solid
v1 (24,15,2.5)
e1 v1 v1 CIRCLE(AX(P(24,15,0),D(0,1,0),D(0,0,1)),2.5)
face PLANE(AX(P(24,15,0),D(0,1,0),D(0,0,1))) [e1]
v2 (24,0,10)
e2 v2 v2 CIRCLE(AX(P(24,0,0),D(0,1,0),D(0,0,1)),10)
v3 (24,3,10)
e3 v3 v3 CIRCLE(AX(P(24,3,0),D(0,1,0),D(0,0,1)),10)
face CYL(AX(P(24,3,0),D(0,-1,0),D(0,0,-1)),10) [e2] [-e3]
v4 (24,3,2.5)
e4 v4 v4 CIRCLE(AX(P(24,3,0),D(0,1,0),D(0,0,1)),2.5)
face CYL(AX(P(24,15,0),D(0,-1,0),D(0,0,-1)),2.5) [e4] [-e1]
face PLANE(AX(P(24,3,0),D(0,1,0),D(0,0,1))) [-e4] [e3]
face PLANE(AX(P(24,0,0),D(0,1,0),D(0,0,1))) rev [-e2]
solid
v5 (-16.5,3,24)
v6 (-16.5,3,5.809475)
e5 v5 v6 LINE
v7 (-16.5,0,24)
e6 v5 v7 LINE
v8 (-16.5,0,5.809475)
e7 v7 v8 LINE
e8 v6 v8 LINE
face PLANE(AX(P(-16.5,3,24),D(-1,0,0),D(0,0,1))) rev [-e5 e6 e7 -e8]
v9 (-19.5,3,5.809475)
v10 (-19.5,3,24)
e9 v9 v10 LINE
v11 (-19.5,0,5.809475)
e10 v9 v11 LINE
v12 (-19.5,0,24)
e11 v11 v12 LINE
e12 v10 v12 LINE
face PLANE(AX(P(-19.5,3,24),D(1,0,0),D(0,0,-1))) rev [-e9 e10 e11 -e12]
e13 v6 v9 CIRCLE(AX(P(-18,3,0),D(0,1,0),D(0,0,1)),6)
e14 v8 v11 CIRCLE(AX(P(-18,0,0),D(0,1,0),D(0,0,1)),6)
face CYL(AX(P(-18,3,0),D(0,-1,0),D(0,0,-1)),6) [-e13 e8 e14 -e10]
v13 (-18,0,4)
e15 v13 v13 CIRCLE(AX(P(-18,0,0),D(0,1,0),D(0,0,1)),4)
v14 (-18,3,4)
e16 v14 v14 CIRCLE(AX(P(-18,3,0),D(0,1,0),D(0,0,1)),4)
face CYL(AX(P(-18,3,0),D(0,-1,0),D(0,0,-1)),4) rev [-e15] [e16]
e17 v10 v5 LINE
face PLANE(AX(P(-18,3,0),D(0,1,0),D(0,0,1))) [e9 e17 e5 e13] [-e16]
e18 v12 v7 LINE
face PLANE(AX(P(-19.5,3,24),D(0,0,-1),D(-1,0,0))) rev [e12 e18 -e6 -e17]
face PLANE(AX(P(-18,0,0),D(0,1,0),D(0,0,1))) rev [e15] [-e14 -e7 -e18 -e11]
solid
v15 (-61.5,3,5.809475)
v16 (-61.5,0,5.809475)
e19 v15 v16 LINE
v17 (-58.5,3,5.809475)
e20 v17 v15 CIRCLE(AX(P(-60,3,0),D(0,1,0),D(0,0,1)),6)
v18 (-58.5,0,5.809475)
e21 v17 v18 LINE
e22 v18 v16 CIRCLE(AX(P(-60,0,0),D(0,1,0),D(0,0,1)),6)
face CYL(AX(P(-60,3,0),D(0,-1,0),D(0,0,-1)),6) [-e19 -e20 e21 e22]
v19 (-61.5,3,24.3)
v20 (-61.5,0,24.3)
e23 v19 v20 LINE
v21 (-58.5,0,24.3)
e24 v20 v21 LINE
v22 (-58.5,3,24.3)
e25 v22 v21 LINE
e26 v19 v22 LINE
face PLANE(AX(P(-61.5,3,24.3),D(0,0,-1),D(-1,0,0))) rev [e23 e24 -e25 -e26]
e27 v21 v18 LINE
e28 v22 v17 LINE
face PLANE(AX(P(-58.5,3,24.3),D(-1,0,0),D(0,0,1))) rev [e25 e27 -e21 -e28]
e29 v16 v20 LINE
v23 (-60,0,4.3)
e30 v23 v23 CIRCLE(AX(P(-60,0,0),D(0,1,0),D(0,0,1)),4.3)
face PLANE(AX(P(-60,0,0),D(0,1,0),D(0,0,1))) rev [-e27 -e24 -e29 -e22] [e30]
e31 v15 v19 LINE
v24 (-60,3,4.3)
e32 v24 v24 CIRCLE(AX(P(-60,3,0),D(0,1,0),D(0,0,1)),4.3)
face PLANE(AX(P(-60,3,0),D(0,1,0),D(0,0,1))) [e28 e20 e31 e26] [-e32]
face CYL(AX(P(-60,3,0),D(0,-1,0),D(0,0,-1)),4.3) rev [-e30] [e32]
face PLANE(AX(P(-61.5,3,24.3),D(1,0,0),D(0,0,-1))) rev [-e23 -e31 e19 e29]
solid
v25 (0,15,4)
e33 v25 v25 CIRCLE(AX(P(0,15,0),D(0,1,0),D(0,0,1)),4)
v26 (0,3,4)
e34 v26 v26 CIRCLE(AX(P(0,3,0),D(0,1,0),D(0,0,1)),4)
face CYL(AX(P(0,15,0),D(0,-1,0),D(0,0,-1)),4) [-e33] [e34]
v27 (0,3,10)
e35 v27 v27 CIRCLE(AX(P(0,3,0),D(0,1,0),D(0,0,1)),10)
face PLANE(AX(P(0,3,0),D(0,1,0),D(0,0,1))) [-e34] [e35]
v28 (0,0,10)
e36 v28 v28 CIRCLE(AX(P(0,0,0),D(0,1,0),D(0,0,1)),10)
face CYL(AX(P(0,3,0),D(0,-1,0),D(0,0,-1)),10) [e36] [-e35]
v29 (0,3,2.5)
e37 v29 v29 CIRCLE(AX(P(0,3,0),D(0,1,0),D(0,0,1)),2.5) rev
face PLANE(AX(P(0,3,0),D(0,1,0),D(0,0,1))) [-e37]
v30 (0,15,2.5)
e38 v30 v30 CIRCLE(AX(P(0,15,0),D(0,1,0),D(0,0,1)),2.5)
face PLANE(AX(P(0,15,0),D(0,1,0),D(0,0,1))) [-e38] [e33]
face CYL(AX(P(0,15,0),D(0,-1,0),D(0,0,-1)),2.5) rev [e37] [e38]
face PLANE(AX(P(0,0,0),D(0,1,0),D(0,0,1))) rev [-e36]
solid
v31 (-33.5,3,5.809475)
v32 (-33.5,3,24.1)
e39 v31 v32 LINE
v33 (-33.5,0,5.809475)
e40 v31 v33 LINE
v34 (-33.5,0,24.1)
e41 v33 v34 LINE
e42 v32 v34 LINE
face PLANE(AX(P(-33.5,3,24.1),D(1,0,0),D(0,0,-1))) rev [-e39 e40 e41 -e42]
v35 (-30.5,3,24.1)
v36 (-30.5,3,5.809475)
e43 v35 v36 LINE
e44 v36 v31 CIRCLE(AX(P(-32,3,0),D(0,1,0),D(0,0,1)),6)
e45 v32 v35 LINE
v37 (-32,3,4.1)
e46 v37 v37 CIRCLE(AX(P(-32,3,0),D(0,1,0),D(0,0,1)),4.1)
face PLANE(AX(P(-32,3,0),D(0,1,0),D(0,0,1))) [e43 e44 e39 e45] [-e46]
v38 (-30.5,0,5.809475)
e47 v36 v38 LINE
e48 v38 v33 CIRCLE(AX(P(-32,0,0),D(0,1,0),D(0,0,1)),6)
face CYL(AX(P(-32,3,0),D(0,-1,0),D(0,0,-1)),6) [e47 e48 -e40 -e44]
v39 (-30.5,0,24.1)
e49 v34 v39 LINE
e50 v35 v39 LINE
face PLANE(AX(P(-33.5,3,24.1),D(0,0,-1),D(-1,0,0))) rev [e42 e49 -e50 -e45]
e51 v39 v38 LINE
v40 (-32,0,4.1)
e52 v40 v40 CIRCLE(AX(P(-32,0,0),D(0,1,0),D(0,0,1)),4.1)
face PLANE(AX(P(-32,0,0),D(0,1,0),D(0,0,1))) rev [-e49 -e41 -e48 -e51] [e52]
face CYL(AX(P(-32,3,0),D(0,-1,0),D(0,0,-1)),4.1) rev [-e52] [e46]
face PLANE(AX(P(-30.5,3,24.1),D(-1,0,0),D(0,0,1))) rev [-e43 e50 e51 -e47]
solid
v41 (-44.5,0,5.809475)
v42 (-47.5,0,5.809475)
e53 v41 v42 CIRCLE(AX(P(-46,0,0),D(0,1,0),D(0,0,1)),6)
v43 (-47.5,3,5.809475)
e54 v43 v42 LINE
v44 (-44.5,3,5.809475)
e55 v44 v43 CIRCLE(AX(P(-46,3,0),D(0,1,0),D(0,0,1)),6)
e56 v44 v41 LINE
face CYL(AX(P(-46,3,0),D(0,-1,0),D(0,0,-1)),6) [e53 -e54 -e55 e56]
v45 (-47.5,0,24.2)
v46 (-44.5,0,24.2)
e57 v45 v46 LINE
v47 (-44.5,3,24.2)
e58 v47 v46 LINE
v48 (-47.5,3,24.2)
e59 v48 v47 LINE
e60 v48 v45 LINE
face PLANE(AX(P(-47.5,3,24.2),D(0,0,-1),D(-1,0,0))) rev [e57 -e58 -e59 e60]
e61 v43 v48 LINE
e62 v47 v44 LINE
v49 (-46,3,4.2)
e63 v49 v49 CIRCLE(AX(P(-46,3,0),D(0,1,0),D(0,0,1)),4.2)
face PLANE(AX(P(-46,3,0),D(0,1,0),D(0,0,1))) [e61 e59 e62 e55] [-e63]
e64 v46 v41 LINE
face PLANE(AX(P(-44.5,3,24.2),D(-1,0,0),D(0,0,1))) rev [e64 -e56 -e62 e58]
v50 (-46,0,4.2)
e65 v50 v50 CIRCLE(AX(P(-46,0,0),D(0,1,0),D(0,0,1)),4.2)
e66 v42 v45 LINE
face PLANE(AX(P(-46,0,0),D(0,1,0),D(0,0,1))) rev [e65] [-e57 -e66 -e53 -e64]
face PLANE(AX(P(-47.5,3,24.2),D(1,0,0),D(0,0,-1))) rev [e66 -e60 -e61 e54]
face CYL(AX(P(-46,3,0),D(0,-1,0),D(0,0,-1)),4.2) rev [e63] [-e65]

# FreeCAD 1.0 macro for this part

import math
import FreeCAD as App
import Part
import Sketcher

V = App.Vector

doc = App.newDocument("Part")
body = doc.addObject("PartDesign::Body", "Body")

sketch1 = doc.addObject("Sketcher::SketchObject", "Sketch")
body.addObject(sketch1)
sketch1.AttachmentSupport = (doc.XZ_Plane, [""])
sketch1.MapMode = "FlatFace"
sketch1.addGeometry(Part.Circle(V(0, 0, 0), V(0, 0, 1), 10), False)
sketch1.addConstraint(Sketcher.Constraint("Coincident", 0, 3, -1, 1))
sketch1.addConstraint(Sketcher.Constraint("Diameter", 0, 20.0))
pad1 = doc.addObject("PartDesign::Pad", "Pad")
body.addObject(pad1)
pad1.Profile = sketch1
pad1.Length = 3
pad1.Reversed = True

sketch2 = doc.addObject("Sketcher::SketchObject", "Sketch001")
body.addObject(sketch2)
sketch2.AttachmentSupport = (doc.XZ_Plane, [""])
sketch2.MapMode = "FlatFace"
sketch2.AttachmentOffset = App.Placement(V(0, 0, -3), App.Rotation())
sketch2.addGeometry(Part.Circle(V(0, 0, 0), V(0, 0, 1), 4), False)
sketch2.addGeometry(Part.Circle(V(0, 0, 0), V(0, 0, 1), 2.5), False)
sketch2.addConstraint(Sketcher.Constraint("Coincident", 0, 3, -1, 1))
sketch2.addConstraint(Sketcher.Constraint("Coincident", 1, 3, -1, 1))
sketch2.addConstraint(Sketcher.Constraint("Diameter", 0, 8.0))
sketch2.addConstraint(Sketcher.Constraint("Diameter", 1, 5.0))
pad2 = doc.addObject("PartDesign::Pad", "Pad001")
body.addObject(pad2)
pad2.Profile = sketch2
pad2.Length = 12
pad2.Reversed = True
body2 = doc.addObject("PartDesign::Body", "Body001")

sketch3 = doc.addObject("Sketcher::SketchObject", "Sketch002")
body2.addObject(sketch3)
sketch3.AttachmentSupport = (doc.getObject("XZ_Plane001"), [""])
sketch3.MapMode = "FlatFace"
sketch3.addGeometry(Part.Circle(V(24, 0, 0), V(0, 0, 1), 10), False)
sketch3.addConstraint(Sketcher.Constraint("PointOnObject", 0, 3, -1))
sketch3.addConstraint(Sketcher.Constraint("Diameter", 0, 20.0))
sketch3.addConstraint(Sketcher.Constraint("DistanceX", -1, 1, 0, 3, 24.0))
pad3 = doc.addObject("PartDesign::Pad", "Pad002")
body2.addObject(pad3)
pad3.Profile = sketch3
pad3.Length = 3
pad3.Reversed = True

sketch4 = doc.addObject("Sketcher::SketchObject", "Sketch003")
body2.addObject(sketch4)
sketch4.AttachmentSupport = (doc.getObject("XZ_Plane001"), [""])
sketch4.MapMode = "FlatFace"
sketch4.AttachmentOffset = App.Placement(V(0, 0, -3), App.Rotation())
sketch4.addGeometry(Part.Circle(V(24, 0, 0), V(0, 0, 1), 2.5), False)
sketch4.addConstraint(Sketcher.Constraint("PointOnObject", 0, 3, -1))
sketch4.addConstraint(Sketcher.Constraint("Diameter", 0, 5.0))
sketch4.addConstraint(Sketcher.Constraint("DistanceX", -1, 1, 0, 3, 24.0))
pad4 = doc.addObject("PartDesign::Pad", "Pad003")
body2.addObject(pad4)
pad4.Profile = sketch4
pad4.Length = 12
pad4.Reversed = True
body3 = doc.addObject("PartDesign::Body", "Body002")

sketch5 = doc.addObject("Sketcher::SketchObject", "Sketch004")
body3.addObject(sketch5)
sketch5.AttachmentSupport = (doc.getObject("XZ_Plane002"), [""])
sketch5.MapMode = "FlatFace"
sketch5.addGeometry(Part.LineSegment(V(-61.5, 24.3, 0), V(-58.5, 24.3, 0)), False)
sketch5.addGeometry(Part.LineSegment(V(-58.5, 24.3, 0), V(-58.5, 5.8, 0)), False)
sketch5.addGeometry(Part.ArcOfCircle(Part.Circle(V(-60, 0, 0), V(0, 0, 1), 6), math.radians(104), math.radians(436)), False)
sketch5.addGeometry(Part.LineSegment(V(-61.5, 5.8, 0), V(-61.5, 24.3, 0)), False)
sketch5.addGeometry(Part.Circle(V(-60, 0, 0), V(0, 0, 1), 4.3), False)
sketch5.addConstraint(Sketcher.Constraint("Coincident", 0, 2, 1, 1))
sketch5.addConstraint(Sketcher.Constraint("Coincident", 1, 2, 2, 2))
sketch5.addConstraint(Sketcher.Constraint("Coincident", 2, 1, 3, 1))
sketch5.addConstraint(Sketcher.Constraint("Coincident", 3, 2, 0, 1))
sketch5.addConstraint(Sketcher.Constraint("Horizontal", 0))
sketch5.addConstraint(Sketcher.Constraint("Vertical", 1))
sketch5.addConstraint(Sketcher.Constraint("Vertical", 3))
sketch5.addConstraint(Sketcher.Constraint("Coincident", 4, 3, 2, 3))
sketch5.addConstraint(Sketcher.Constraint("PointOnObject", 2, 3, -1))
sketch5.addConstraint(Sketcher.Constraint("Horizontal", 1, 2, 2, 1))
sketch5.addConstraint(Sketcher.Constraint("Radius", 2, 6.0))
sketch5.addConstraint(Sketcher.Constraint("Diameter", 4, 8.6))
sketch5.addConstraint(Sketcher.Constraint("DistanceX", 0, 1, 0, 2, 3.0))
sketch5.addConstraint(Sketcher.Constraint("DistanceX", 2, 3, -1, 1, 60.0))
sketch5.addConstraint(Sketcher.Constraint("DistanceY", -1, 1, 0, 2, 24.3))
pad5 = doc.addObject("PartDesign::Pad", "Pad004")
body3.addObject(pad5)
pad5.Profile = sketch5
pad5.Length = 3
pad5.Reversed = True
body4 = doc.addObject("PartDesign::Body", "Body003")

sketch6 = doc.addObject("Sketcher::SketchObject", "Sketch005")
body4.addObject(sketch6)
sketch6.AttachmentSupport = (doc.getObject("XZ_Plane003"), [""])
sketch6.MapMode = "FlatFace"
sketch6.addGeometry(Part.LineSegment(V(-47.5, 24.2, 0), V(-44.5, 24.2, 0)), False)
sketch6.addGeometry(Part.LineSegment(V(-44.5, 24.2, 0), V(-44.5, 5.8, 0)), False)
sketch6.addGeometry(Part.ArcOfCircle(Part.Circle(V(-46, 0, 0), V(0, 0, 1), 6), math.radians(104), math.radians(436)), False)
sketch6.addGeometry(Part.LineSegment(V(-47.5, 5.8, 0), V(-47.5, 24.2, 0)), False)
sketch6.addGeometry(Part.Circle(V(-46, 0, 0), V(0, 0, 1), 4.2), False)
sketch6.addConstraint(Sketcher.Constraint("Coincident", 0, 2, 1, 1))
sketch6.addConstraint(Sketcher.Constraint("Coincident", 1, 2, 2, 2))
sketch6.addConstraint(Sketcher.Constraint("Coincident", 2, 1, 3, 1))
sketch6.addConstraint(Sketcher.Constraint("Coincident", 3, 2, 0, 1))
sketch6.addConstraint(Sketcher.Constraint("Horizontal", 0))
sketch6.addConstraint(Sketcher.Constraint("Vertical", 1))
sketch6.addConstraint(Sketcher.Constraint("Vertical", 3))
sketch6.addConstraint(Sketcher.Constraint("Coincident", 4, 3, 2, 3))
sketch6.addConstraint(Sketcher.Constraint("PointOnObject", 2, 3, -1))
sketch6.addConstraint(Sketcher.Constraint("Horizontal", 1, 2, 2, 1))
sketch6.addConstraint(Sketcher.Constraint("Radius", 2, 6.0))
sketch6.addConstraint(Sketcher.Constraint("Diameter", 4, 8.4))
sketch6.addConstraint(Sketcher.Constraint("DistanceX", 0, 1, 0, 2, 3.0))
sketch6.addConstraint(Sketcher.Constraint("DistanceX", 2, 3, -1, 1, 46.0))
sketch6.addConstraint(Sketcher.Constraint("DistanceY", -1, 1, 0, 2, 24.2))
pad6 = doc.addObject("PartDesign::Pad", "Pad005")
body4.addObject(pad6)
pad6.Profile = sketch6
pad6.Length = 3
pad6.Reversed = True
body5 = doc.addObject("PartDesign::Body", "Body004")

sketch7 = doc.addObject("Sketcher::SketchObject", "Sketch006")
body5.addObject(sketch7)
sketch7.AttachmentSupport = (doc.getObject("XZ_Plane004"), [""])
sketch7.MapMode = "FlatFace"
sketch7.addGeometry(Part.LineSegment(V(-33.5, 24.1, 0), V(-30.5, 24.1, 0)), False)
sketch7.addGeometry(Part.LineSegment(V(-30.5, 24.1, 0), V(-30.5, 5.8, 0)), False)
sketch7.addGeometry(Part.ArcOfCircle(Part.Circle(V(-32, 0, 0), V(0, 0, 1), 6), math.radians(104), math.radians(436)), False)
sketch7.addGeometry(Part.LineSegment(V(-33.5, 5.8, 0), V(-33.5, 24.1, 0)), False)
sketch7.addGeometry(Part.Circle(V(-32, 0, 0), V(0, 0, 1), 4.1), False)
sketch7.addConstraint(Sketcher.Constraint("Coincident", 0, 2, 1, 1))
sketch7.addConstraint(Sketcher.Constraint("Coincident", 1, 2, 2, 2))
sketch7.addConstraint(Sketcher.Constraint("Coincident", 2, 1, 3, 1))
sketch7.addConstraint(Sketcher.Constraint("Coincident", 3, 2, 0, 1))
sketch7.addConstraint(Sketcher.Constraint("Horizontal", 0))
sketch7.addConstraint(Sketcher.Constraint("Vertical", 1))
sketch7.addConstraint(Sketcher.Constraint("Vertical", 3))
sketch7.addConstraint(Sketcher.Constraint("Coincident", 4, 3, 2, 3))
sketch7.addConstraint(Sketcher.Constraint("PointOnObject", 2, 3, -1))
sketch7.addConstraint(Sketcher.Constraint("Horizontal", 1, 2, 2, 1))
sketch7.addConstraint(Sketcher.Constraint("Radius", 2, 6.0))
sketch7.addConstraint(Sketcher.Constraint("Diameter", 4, 8.2))
sketch7.addConstraint(Sketcher.Constraint("DistanceX", 0, 1, 0, 2, 3.0))
sketch7.addConstraint(Sketcher.Constraint("DistanceX", 2, 3, -1, 1, 32.0))
sketch7.addConstraint(Sketcher.Constraint("DistanceY", -1, 1, 0, 2, 24.1))
pad7 = doc.addObject("PartDesign::Pad", "Pad006")
body5.addObject(pad7)
pad7.Profile = sketch7
pad7.Length = 3
pad7.Reversed = True
body6 = doc.addObject("PartDesign::Body", "Body005")

sketch8 = doc.addObject("Sketcher::SketchObject", "Sketch007")
body6.addObject(sketch8)
sketch8.AttachmentSupport = (doc.getObject("XZ_Plane005"), [""])
sketch8.MapMode = "FlatFace"
sketch8.addGeometry(Part.LineSegment(V(-19.5, 24, 0), V(-16.5, 24, 0)), False)
sketch8.addGeometry(Part.LineSegment(V(-16.5, 24, 0), V(-16.5, 5.8, 0)), False)
sketch8.addGeometry(Part.ArcOfCircle(Part.Circle(V(-18, 0, 0), V(0, 0, 1), 6), math.radians(104), math.radians(436)), False)
sketch8.addGeometry(Part.LineSegment(V(-19.5, 5.8, 0), V(-19.5, 24, 0)), False)
sketch8.addGeometry(Part.Circle(V(-18, 0, 0), V(0, 0, 1), 4), False)
sketch8.addConstraint(Sketcher.Constraint("Coincident", 0, 2, 1, 1))
sketch8.addConstraint(Sketcher.Constraint("Coincident", 1, 2, 2, 2))
sketch8.addConstraint(Sketcher.Constraint("Coincident", 2, 1, 3, 1))
sketch8.addConstraint(Sketcher.Constraint("Coincident", 3, 2, 0, 1))
sketch8.addConstraint(Sketcher.Constraint("Horizontal", 0))
sketch8.addConstraint(Sketcher.Constraint("Vertical", 1))
sketch8.addConstraint(Sketcher.Constraint("Vertical", 3))
sketch8.addConstraint(Sketcher.Constraint("Coincident", 4, 3, 2, 3))
sketch8.addConstraint(Sketcher.Constraint("PointOnObject", 2, 3, -1))
sketch8.addConstraint(Sketcher.Constraint("Horizontal", 1, 2, 2, 1))
sketch8.addConstraint(Sketcher.Constraint("Diameter", 4, 8.0))
sketch8.addConstraint(Sketcher.Constraint("Radius", 2, 6.0))
sketch8.addConstraint(Sketcher.Constraint("DistanceX", 0, 1, 0, 2, 3.0))
sketch8.addConstraint(Sketcher.Constraint("DistanceX", 2, 3, -1, 1, 18.0))
sketch8.addConstraint(Sketcher.Constraint("DistanceY", -1, 1, 0, 2, 24.0))
pad8 = doc.addObject("PartDesign::Pad", "Pad007")
body6.addObject(pad8)
pad8.Profile = sketch8
pad8.Length = 3
pad8.Reversed = True

doc.recompute()
